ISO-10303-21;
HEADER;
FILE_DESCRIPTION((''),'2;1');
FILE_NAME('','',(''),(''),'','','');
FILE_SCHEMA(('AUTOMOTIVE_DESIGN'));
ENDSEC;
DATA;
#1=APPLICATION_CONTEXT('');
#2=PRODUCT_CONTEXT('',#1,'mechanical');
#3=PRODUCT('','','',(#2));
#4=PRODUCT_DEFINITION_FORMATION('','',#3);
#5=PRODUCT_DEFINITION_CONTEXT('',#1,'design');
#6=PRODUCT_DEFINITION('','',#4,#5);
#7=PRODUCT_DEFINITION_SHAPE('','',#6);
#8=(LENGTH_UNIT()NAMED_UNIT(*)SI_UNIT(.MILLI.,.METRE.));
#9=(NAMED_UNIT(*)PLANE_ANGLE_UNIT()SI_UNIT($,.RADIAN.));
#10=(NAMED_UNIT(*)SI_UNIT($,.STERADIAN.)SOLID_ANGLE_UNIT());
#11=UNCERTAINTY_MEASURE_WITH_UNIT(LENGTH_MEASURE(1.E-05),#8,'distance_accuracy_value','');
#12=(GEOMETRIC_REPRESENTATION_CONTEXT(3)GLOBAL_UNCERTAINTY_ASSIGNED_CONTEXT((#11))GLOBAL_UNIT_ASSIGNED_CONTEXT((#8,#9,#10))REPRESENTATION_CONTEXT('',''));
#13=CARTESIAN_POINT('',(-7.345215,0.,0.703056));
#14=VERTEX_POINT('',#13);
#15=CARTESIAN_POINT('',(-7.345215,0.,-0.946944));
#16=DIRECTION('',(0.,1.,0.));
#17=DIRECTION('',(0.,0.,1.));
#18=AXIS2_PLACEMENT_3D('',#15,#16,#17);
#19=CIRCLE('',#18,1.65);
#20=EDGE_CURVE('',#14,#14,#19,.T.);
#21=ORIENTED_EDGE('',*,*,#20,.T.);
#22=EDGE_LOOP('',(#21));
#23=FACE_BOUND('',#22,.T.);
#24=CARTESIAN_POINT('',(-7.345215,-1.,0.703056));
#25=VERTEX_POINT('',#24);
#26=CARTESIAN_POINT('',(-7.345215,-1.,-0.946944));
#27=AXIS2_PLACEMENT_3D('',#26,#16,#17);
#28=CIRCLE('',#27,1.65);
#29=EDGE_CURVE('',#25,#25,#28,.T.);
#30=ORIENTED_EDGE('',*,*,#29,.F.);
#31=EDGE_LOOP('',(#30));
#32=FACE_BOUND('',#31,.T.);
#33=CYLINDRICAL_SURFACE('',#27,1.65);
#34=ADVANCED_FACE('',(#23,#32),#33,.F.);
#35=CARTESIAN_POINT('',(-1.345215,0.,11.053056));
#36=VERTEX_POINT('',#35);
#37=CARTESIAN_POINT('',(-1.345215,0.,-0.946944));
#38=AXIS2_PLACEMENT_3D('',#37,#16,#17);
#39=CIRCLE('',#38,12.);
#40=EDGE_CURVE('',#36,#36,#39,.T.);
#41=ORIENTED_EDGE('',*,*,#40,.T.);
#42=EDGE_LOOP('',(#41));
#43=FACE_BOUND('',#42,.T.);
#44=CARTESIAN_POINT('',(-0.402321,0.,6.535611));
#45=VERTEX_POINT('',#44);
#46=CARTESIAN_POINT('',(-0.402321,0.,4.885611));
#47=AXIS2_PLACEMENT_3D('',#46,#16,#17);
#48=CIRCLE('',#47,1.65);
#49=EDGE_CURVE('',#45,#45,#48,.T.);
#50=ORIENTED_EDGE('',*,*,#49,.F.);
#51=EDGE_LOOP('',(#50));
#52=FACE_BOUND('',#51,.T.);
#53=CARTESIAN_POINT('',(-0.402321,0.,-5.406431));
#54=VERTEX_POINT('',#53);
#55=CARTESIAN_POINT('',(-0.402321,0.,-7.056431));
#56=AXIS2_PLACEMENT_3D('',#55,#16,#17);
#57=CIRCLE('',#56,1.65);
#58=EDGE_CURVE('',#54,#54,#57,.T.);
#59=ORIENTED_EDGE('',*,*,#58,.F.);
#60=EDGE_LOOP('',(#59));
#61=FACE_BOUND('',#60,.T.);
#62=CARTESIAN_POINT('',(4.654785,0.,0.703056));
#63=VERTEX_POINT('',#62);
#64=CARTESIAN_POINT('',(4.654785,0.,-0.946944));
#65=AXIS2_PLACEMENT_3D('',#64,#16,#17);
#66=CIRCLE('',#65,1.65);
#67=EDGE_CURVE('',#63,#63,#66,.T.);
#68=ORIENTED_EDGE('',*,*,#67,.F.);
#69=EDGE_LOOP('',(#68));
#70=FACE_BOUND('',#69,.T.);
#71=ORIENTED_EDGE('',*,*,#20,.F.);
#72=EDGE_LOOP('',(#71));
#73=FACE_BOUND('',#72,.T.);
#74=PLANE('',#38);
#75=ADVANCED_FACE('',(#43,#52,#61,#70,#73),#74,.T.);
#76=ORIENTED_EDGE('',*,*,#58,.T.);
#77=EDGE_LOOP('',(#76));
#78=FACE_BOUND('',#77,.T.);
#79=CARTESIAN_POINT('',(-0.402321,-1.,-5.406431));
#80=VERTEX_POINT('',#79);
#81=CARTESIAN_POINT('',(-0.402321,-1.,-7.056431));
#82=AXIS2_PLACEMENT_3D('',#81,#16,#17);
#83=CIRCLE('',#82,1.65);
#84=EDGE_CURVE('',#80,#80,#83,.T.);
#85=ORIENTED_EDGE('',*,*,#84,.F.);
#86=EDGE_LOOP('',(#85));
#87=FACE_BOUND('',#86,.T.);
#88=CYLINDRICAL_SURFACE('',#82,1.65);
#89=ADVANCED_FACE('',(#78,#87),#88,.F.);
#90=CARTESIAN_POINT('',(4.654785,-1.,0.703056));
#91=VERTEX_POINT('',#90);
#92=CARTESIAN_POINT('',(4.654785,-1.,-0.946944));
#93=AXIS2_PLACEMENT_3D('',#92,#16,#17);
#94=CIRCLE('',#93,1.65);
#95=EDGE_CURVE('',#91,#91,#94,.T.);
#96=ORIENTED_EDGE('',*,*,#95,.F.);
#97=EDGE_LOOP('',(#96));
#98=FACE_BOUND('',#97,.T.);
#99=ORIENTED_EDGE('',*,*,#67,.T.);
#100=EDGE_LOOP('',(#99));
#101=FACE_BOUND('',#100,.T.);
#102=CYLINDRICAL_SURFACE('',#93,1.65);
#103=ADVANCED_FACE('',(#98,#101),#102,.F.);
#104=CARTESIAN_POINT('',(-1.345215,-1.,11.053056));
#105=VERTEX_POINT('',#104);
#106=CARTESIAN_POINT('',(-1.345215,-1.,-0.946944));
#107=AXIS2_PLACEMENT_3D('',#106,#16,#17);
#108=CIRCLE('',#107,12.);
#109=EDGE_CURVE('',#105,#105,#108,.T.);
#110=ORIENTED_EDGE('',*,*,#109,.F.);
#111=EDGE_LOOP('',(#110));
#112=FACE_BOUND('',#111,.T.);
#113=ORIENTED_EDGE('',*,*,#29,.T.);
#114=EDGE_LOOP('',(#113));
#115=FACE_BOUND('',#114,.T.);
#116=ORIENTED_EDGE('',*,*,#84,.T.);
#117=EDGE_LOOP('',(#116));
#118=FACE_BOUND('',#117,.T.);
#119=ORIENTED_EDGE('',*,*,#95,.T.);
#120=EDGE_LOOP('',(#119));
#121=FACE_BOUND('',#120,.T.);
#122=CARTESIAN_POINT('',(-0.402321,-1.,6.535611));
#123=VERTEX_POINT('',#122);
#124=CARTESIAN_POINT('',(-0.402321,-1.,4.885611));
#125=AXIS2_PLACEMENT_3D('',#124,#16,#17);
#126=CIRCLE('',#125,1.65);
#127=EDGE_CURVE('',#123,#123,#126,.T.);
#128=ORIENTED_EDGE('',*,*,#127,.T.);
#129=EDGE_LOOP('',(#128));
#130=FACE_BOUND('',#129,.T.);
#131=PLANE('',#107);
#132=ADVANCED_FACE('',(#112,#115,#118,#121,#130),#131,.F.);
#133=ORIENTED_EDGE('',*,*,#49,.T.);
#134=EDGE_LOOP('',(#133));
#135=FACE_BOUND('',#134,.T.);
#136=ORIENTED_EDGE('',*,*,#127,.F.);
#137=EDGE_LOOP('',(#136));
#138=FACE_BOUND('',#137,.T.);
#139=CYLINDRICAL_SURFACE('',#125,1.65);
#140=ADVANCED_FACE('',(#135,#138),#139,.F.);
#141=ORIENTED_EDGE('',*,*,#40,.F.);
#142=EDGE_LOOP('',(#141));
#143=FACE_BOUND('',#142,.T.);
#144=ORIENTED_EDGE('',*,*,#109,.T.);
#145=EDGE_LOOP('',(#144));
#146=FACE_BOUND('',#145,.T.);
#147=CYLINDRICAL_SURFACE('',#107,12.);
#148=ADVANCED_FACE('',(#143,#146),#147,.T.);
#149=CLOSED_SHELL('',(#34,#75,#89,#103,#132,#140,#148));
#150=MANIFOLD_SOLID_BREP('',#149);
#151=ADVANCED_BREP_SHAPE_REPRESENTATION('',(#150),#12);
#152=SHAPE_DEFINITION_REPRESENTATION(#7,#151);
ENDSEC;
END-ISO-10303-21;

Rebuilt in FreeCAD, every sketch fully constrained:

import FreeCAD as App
import Part
import Sketcher
Q = App.Units.Quantity

doc = App.newDocument("Part")
body = doc.addObject("PartDesign::Body", "Body")

# Sketch on XZ plane
sketch1 = body.newObject("Sketcher::SketchObject", "Sketch")
sketch1.AttachmentSupport = (doc.getObject("XZ_Plane"), [""])
sketch1.MapMode = "FlatFace"
sketch1.addGeometry(Part.Circle(App.Vector(-1, -1, 0), App.Vector(0, 0, 1), 12), False)
sketch1.addConstraint(Sketcher.Constraint("Diameter", 0, Q("24 mm")))
sketch1.addConstraint(Sketcher.Constraint("DistanceX", 0, 3, -1, 1, Q("1.345215 mm")))
sketch1.addConstraint(Sketcher.Constraint("DistanceY", 0, 3, -1, 1, Q("0.946944 mm")))
pad1 = body.newObject("PartDesign::Pad", "Pad")
pad1.Profile = sketch1
pad1.Length = 1

# Sketch on XZ plane
sketch2 = body.newObject("Sketcher::SketchObject", "Sketch001")
sketch2.AttachmentSupport = (doc.getObject("XZ_Plane"), [""])
sketch2.MapMode = "FlatFace"
sketch2.addGeometry(Part.Circle(App.Vector(-0.4, -7.1, 0), App.Vector(0, 0, 1), 1.6), False)
sketch2.addGeometry(Part.Circle(App.Vector(-0.4, 4.9, 0), App.Vector(0, 0, 1), 1.6), False)
sketch2.addGeometry(Part.Circle(App.Vector(-7.3, -0.9, 0), App.Vector(0, 0, 1), 1.6), False)
sketch2.addGeometry(Part.Circle(App.Vector(4.7, -0.9, 0), App.Vector(0, 0, 1), 1.6), False)
sketch2.addConstraint(Sketcher.Constraint("Equal", 0, 1))
sketch2.addConstraint(Sketcher.Constraint("Equal", 1, 2))
sketch2.addConstraint(Sketcher.Constraint("Equal", 2, 3))
sketch2.addConstraint(Sketcher.Constraint("Horizontal", 2, 3, 3, 3))
sketch2.addConstraint(Sketcher.Constraint("Vertical", 0, 3, 1, 3))
sketch2.addConstraint(Sketcher.Constraint("Diameter", 0, Q("3.3 mm")))
sketch2.addConstraint(Sketcher.Constraint("DistanceX", 2, 3, 3, 3, Q("12 mm")))
sketch2.addConstraint(Sketcher.Constraint("DistanceX", 0, 3, -1, 1, Q("0.402321 mm")))
sketch2.addConstraint(Sketcher.Constraint("DistanceY", 0, 3, -1, 1, Q("7.056431 mm")))
sketch2.addConstraint(Sketcher.Constraint("DistanceY", -1, 1, 1, 3, Q("4.885611 mm")))
sketch2.addConstraint(Sketcher.Constraint("DistanceX", 2, 3, -1, 1, Q("7.345215 mm")))
sketch2.addConstraint(Sketcher.Constraint("DistanceY", 2, 3, -1, 1, Q("0.946944 mm")))
pocket1 = body.newObject("PartDesign::Pocket", "Pocket")
pocket1.Profile = sketch2
pocket1.Length = 1
pocket1.Reversed = True

doc.recompute()
